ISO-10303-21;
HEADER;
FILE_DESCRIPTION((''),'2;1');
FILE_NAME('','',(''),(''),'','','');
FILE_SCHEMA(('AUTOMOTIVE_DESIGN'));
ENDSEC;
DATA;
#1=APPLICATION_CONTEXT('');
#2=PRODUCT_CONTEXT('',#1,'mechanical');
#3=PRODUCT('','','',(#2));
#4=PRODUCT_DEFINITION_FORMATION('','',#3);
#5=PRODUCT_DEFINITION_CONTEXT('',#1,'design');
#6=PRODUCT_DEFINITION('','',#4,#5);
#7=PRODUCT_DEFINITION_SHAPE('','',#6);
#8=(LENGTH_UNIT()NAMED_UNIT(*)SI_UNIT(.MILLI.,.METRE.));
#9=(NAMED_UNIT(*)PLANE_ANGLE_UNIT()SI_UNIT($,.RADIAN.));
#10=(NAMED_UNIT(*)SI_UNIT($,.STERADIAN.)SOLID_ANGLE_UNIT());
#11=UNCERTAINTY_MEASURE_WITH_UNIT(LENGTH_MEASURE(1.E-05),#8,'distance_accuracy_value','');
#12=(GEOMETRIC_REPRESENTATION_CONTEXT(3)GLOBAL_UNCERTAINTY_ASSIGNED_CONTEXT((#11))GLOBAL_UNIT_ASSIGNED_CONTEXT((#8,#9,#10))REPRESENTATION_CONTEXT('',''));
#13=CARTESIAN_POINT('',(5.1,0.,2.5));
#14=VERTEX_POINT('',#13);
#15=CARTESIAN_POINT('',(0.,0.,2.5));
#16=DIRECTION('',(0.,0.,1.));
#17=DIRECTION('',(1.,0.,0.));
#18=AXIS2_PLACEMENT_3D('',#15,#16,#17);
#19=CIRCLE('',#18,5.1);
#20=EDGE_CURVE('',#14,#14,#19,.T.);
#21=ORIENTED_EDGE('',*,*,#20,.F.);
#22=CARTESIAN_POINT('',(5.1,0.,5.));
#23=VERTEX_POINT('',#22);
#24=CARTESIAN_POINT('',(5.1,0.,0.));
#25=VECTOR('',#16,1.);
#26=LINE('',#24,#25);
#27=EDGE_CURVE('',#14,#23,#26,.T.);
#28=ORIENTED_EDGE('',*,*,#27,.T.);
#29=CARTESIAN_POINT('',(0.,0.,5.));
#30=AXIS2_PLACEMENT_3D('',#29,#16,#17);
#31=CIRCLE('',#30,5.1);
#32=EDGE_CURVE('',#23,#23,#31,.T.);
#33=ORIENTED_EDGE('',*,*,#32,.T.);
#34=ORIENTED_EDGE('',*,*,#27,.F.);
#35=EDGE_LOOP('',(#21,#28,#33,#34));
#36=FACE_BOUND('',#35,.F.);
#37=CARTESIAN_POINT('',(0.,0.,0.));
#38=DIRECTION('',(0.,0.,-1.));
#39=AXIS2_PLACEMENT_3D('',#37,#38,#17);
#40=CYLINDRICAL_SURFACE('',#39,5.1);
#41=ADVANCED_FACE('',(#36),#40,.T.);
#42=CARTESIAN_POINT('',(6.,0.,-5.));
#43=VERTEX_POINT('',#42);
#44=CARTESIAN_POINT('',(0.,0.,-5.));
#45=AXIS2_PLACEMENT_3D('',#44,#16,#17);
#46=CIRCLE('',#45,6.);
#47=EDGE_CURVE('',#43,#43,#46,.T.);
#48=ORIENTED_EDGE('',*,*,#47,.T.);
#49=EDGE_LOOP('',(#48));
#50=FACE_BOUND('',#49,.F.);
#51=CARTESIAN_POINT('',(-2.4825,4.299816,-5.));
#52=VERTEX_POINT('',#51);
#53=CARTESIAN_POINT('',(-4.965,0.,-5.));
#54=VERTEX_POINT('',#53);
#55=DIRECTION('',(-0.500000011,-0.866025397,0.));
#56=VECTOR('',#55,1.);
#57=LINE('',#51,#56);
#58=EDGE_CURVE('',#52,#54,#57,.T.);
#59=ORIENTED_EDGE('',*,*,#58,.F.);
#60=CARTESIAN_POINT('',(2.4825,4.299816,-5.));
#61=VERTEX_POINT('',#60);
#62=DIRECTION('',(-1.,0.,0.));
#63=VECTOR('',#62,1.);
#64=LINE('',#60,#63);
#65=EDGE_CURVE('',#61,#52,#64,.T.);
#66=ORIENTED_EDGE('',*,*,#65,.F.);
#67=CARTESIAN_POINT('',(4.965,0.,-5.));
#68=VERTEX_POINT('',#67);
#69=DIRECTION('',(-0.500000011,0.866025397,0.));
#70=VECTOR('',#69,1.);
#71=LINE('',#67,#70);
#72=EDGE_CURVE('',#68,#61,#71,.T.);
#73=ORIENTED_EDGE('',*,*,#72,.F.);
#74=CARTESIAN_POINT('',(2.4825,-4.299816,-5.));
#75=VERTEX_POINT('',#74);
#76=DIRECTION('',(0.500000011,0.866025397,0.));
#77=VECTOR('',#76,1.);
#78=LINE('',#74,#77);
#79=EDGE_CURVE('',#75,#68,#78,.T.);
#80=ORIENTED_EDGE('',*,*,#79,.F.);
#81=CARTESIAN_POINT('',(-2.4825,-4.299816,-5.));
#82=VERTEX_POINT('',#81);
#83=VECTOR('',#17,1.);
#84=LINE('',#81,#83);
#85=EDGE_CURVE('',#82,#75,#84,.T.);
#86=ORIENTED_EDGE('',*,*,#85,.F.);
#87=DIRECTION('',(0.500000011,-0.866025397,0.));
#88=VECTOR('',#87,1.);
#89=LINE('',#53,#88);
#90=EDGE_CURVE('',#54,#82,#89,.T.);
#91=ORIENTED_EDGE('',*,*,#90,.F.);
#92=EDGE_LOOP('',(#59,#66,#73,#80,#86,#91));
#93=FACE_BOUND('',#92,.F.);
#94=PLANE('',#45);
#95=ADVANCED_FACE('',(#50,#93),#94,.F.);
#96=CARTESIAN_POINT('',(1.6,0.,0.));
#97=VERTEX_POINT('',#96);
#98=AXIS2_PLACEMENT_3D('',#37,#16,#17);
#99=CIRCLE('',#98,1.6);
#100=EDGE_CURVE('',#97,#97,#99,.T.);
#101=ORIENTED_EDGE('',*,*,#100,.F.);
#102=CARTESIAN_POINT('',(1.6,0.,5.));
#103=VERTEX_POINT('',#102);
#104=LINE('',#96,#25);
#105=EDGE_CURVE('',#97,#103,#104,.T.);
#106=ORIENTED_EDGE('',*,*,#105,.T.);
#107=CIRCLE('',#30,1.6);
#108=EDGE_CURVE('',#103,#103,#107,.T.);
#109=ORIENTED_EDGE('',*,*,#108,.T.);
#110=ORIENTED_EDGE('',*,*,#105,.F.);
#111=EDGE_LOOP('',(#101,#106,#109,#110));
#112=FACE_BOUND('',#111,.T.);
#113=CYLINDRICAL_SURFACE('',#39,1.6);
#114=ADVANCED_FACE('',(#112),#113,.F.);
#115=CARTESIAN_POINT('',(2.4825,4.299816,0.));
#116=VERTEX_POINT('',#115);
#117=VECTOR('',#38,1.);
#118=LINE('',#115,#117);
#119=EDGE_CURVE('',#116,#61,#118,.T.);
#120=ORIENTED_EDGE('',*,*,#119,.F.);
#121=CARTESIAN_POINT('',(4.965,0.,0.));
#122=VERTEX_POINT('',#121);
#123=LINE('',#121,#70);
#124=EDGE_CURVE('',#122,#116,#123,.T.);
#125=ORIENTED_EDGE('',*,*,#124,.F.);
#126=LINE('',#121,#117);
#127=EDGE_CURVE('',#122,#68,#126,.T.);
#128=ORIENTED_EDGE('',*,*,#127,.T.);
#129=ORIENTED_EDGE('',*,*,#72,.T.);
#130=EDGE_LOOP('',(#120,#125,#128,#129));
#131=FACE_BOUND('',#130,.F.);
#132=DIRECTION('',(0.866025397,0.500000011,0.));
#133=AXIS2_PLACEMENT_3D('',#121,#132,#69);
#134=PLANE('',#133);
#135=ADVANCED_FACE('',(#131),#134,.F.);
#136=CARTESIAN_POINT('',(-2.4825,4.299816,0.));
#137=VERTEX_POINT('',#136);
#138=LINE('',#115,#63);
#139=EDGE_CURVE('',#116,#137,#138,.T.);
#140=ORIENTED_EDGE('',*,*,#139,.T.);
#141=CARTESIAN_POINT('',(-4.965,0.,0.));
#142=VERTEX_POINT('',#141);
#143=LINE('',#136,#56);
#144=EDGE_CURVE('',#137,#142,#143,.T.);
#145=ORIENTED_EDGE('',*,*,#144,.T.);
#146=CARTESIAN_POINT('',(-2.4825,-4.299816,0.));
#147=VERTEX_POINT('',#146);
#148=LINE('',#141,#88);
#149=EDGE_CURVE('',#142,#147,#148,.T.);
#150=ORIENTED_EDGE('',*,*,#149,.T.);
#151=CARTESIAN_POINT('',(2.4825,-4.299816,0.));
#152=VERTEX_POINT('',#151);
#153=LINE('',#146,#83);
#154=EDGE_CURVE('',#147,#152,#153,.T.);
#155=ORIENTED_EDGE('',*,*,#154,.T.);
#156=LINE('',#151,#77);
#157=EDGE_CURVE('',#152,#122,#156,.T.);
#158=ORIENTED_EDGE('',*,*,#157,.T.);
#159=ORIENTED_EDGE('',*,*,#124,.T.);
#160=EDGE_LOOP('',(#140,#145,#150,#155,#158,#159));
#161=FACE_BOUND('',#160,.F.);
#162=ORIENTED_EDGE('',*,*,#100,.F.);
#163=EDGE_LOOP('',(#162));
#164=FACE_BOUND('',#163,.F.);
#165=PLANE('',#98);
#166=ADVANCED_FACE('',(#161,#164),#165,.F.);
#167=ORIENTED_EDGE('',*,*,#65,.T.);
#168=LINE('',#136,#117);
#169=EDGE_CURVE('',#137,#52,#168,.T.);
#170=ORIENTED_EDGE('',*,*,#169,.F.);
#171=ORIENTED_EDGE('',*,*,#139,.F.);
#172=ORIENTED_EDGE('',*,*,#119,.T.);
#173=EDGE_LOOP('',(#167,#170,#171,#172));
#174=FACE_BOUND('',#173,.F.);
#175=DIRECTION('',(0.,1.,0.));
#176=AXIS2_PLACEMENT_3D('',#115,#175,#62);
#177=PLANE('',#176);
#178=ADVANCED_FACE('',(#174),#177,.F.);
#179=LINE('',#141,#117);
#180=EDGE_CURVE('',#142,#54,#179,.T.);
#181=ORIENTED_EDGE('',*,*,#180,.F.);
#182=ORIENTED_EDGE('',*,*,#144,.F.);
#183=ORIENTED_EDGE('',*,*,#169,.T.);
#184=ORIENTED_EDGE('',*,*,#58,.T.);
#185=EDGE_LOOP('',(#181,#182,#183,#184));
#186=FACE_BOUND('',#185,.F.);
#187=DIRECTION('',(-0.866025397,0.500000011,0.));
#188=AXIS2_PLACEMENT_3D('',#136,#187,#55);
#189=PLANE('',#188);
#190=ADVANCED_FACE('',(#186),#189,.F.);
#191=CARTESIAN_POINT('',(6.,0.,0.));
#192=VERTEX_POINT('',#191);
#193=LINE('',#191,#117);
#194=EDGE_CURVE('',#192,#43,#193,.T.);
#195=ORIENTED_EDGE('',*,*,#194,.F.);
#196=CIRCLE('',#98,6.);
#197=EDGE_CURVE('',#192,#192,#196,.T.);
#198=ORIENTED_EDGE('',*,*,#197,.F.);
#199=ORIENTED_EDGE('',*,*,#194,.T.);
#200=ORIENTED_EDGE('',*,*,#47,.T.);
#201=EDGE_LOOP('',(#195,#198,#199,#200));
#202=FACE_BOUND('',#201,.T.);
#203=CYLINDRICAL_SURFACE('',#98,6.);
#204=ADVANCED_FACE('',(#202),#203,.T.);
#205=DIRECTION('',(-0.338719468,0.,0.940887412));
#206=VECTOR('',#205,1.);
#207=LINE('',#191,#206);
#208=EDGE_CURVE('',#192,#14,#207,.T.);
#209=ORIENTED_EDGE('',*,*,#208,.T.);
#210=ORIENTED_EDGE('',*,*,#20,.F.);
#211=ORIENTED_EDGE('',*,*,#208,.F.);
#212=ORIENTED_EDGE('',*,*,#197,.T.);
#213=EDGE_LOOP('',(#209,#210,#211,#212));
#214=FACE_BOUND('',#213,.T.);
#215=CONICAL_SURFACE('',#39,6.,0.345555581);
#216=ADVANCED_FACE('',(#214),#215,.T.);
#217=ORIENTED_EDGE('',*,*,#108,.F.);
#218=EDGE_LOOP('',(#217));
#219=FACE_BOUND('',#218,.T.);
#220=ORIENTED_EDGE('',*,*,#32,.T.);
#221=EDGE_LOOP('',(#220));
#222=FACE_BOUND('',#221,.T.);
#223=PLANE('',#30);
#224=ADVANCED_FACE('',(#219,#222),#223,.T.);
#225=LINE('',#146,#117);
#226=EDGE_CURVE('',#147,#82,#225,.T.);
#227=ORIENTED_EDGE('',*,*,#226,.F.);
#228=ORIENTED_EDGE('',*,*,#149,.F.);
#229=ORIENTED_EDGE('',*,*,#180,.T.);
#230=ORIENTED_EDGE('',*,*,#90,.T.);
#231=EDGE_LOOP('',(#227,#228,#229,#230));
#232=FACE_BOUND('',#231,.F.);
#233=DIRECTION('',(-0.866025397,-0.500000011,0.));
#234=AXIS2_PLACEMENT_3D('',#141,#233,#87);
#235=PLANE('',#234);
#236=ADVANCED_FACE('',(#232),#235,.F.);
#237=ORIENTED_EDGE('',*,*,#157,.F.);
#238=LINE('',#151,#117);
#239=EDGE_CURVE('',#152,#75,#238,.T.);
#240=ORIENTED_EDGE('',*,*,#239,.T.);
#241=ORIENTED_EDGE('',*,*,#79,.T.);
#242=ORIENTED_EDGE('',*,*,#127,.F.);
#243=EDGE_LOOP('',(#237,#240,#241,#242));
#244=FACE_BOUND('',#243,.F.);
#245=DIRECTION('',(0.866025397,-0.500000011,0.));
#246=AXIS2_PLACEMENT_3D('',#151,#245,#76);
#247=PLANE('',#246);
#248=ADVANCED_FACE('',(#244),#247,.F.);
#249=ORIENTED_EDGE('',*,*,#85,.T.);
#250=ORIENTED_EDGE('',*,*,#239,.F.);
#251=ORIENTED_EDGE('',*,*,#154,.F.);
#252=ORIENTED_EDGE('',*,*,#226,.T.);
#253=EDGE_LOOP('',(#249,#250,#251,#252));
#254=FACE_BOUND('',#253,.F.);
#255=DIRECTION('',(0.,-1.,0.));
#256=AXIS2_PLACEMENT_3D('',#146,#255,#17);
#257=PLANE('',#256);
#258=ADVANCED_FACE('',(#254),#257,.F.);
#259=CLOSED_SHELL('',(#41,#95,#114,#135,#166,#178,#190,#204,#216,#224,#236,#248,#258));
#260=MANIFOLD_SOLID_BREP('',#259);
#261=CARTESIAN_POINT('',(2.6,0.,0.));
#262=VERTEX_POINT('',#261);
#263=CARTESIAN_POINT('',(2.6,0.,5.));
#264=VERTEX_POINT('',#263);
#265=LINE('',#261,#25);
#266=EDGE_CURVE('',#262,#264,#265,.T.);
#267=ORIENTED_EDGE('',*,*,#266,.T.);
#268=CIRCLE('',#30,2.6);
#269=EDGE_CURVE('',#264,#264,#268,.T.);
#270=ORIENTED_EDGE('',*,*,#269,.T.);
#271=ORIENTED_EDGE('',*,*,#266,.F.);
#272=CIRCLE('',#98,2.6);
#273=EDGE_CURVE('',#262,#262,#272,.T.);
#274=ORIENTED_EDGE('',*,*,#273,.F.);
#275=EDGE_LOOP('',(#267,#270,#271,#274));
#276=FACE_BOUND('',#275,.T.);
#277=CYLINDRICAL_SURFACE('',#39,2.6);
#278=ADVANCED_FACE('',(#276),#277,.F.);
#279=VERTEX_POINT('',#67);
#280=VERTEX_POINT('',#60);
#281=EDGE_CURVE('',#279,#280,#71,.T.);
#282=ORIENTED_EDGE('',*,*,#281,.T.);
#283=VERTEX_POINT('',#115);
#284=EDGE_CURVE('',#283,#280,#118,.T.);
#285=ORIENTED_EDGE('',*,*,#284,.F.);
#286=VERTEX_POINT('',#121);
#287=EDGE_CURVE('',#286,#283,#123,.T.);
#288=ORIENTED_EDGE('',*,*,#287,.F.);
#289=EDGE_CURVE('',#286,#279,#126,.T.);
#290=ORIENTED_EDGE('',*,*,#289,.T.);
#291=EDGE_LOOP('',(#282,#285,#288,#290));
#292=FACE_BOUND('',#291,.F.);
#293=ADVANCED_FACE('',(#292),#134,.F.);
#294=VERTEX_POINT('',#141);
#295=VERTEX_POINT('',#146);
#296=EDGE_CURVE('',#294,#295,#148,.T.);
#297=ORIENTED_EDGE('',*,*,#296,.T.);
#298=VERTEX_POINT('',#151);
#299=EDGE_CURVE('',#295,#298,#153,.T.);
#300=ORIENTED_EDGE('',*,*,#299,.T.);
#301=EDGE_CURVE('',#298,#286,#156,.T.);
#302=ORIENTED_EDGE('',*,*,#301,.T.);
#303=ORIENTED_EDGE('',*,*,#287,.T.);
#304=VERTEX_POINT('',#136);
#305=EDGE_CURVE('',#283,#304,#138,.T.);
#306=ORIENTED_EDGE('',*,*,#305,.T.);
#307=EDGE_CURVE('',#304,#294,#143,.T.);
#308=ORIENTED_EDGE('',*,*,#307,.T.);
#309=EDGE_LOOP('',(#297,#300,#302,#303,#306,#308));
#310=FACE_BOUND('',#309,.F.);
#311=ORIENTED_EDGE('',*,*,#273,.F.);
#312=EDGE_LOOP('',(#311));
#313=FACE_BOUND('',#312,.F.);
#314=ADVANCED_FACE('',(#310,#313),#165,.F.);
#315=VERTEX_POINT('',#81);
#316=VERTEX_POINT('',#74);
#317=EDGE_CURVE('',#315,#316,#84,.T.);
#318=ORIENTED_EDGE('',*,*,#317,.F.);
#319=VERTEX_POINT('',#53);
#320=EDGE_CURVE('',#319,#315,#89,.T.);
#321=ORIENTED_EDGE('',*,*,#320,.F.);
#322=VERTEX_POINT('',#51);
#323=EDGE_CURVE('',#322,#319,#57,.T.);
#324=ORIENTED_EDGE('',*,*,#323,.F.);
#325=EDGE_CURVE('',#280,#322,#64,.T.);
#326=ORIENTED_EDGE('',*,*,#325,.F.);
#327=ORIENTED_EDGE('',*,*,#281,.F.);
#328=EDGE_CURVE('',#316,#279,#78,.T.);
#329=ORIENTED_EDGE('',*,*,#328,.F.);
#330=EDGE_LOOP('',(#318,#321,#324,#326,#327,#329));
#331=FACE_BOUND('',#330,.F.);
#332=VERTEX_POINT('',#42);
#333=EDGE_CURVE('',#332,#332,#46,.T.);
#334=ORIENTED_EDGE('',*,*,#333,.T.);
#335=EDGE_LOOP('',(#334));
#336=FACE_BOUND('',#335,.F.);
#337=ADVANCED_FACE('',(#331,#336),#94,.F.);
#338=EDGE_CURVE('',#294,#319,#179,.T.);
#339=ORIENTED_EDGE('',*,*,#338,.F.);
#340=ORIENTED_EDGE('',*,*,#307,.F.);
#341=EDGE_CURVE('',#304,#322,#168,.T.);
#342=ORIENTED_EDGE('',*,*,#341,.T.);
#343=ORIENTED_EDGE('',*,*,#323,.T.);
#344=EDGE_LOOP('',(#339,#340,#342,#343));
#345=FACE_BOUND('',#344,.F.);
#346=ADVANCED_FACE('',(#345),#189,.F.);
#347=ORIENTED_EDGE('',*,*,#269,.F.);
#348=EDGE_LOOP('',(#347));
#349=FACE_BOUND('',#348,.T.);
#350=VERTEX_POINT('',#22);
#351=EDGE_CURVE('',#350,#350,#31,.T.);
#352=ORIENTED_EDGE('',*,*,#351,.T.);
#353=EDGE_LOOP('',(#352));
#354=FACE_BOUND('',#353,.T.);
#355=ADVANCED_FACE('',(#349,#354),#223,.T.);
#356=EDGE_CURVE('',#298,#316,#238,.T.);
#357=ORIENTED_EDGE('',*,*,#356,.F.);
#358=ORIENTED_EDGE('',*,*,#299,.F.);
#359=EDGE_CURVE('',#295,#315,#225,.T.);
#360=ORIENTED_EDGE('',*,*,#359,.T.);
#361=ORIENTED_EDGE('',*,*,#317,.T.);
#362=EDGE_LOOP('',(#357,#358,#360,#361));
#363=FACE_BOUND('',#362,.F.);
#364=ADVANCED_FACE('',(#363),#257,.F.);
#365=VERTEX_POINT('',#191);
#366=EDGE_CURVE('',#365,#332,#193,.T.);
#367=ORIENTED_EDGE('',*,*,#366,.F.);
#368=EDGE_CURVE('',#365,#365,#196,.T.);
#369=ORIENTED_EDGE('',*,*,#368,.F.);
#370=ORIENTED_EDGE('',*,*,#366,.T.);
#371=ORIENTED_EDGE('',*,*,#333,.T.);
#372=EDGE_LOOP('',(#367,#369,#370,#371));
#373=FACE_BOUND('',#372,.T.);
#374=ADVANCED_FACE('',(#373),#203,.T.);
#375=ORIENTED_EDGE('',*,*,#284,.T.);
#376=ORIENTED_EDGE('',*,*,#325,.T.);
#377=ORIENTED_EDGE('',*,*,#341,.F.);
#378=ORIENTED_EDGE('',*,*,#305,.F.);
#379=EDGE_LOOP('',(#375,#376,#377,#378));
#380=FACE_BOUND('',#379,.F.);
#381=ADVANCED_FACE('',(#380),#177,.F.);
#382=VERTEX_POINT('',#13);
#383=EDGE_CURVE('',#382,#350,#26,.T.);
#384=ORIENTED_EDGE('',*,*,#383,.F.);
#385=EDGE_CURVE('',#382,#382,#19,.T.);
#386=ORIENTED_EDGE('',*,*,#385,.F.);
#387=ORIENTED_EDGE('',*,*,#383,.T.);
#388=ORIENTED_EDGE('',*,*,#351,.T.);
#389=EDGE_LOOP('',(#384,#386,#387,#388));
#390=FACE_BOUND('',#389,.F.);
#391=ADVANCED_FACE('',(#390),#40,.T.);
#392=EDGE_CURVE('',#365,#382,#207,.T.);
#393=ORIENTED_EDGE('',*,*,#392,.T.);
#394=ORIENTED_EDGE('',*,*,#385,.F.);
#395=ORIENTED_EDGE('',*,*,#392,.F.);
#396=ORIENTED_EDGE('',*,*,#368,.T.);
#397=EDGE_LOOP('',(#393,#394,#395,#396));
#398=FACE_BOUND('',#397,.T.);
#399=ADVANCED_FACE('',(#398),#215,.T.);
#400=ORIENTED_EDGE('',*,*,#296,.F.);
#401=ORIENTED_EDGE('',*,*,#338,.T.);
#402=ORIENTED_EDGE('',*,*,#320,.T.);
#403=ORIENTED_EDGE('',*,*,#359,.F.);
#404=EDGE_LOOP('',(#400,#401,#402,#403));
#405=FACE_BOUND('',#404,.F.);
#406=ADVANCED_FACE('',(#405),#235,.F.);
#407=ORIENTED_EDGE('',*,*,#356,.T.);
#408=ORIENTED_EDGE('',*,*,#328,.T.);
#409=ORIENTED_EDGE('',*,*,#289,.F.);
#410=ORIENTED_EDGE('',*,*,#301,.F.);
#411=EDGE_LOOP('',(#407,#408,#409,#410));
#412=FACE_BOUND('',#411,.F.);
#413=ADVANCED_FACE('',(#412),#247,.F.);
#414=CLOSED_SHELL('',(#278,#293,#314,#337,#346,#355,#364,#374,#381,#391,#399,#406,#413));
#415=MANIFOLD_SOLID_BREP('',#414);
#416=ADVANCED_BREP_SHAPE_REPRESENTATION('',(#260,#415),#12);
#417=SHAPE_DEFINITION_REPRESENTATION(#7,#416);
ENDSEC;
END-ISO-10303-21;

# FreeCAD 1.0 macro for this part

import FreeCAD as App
import Part
import Sketcher
from FreeCAD import Vector
Q = App.Units.Quantity


def add_polygon(sketch, points):
    """Adds a closed chain of lines whose ends are joined by coincident constraints."""
    first, n = sketch.GeometryCount, len(points)
    for a, b in zip(points, points[1:] + points[:1]):
        sketch.addGeometry(Part.LineSegment(App.Vector(*a, 0), App.Vector(*b, 0)), False)
    for i in range(n):
        sketch.addConstraint(Sketcher.Constraint("Coincident", first + i, 2, first + (i + 1) % n, 1))

doc = App.newDocument("Part")
body = doc.addObject("PartDesign::Body", "Body")

# Sketch on XY plane
sketch1 = body.newObject("Sketcher::SketchObject", "Sketch")
sketch1.AttachmentSupport = (doc.getObject("XY_Plane"), [""])
sketch1.MapMode = "FlatFace"
sketch1.addGeometry(Part.Circle(Vector(0, 0, 0), Vector(0, 0, 1), 5.1), False)
sketch1.addGeometry(Part.Circle(Vector(0, 0, 0), Vector(0, 0, 1), 1.6), False)
sketch1.addConstraint(Sketcher.Constraint("Coincident", 0, 3, -1, 1))
sketch1.addConstraint(Sketcher.Constraint("Coincident", 1, 3, -1, 1))
sketch1.addConstraint(Sketcher.Constraint("Diameter", 0, 10.2))
sketch1.addConstraint(Sketcher.Constraint("Diameter", 1, 3.2))
pad1 = body.newObject("PartDesign::Pad", "Pad")
pad1.Profile = sketch1
pad1.Length = 5

# Sketch on XY plane
sketch2 = body.newObject("Sketcher::SketchObject", "Sketch001")
sketch2.AttachmentSupport = (doc.getObject("XY_Plane"), [""])
sketch2.MapMode = "FlatFace"
sketch2.addGeometry(Part.Circle(Vector(0, 0, 0), Vector(0, 0, 1), 6), False)  # 0
add_polygon(sketch2, [(-2.4825, 4.299816), (2.4825, 4.299816), (4.965, 0), (2.4825, -4.299816), (-2.4825, -4.299816), (-4.965, 0)])  # lines 1-6
sketch2.addConstraint(Sketcher.Constraint("Horizontal", 1))
sketch2.addConstraint(Sketcher.Constraint("Horizontal", 4))
sketch2.addConstraint(Sketcher.Constraint("Coincident", 0, 3, -1, 1))
sketch2.addConstraint(Sketcher.Constraint("Symmetric", 1, 2, 4, 2, -1, 1))
sketch2.addConstraint(Sketcher.Constraint("Symmetric", 2, 2, 5, 2, -1, 1))
sketch2.addConstraint(Sketcher.Constraint("PointOnObject", 2, 2, -1))
sketch2.addConstraint(Sketcher.Constraint("Parallel", 3, 6))
sketch2.addConstraint(Sketcher.Constraint("Vertical", 1, 2, 3, 2))
sketch2.addConstraint(Sketcher.Constraint("Diameter", 0, 12.0))
sketch2.addConstraint(Sketcher.Constraint("Angle", 2, Q("-59.999999 deg")))
sketch2.addConstraint(Sketcher.Constraint("DistanceX", 1, 1, 1, 2, 4.965))
sketch2.addConstraint(Sketcher.Constraint("DistanceX", 5, 2, 2, 2, 9.93))
pad2 = body.newObject("PartDesign::Pad", "Pad001")
pad2.Profile = sketch2
pad2.Length = 5
pad2.Reversed = True

# Sketch on XZ plane
sketch3 = body.newObject("Sketcher::SketchObject", "Sketch002")
sketch3.AttachmentSupport = (doc.getObject("XZ_Plane"), [""])
sketch3.MapMode = "FlatFace"
add_polygon(sketch3, [(6, 0), (5.1, 2.5), (5.1, 0)])  # lines 0-2
sketch3.addConstraint(Sketcher.Constraint("Vertical", 1))
sketch3.addConstraint(Sketcher.Constraint("Horizontal", 2))
sketch3.addConstraint(Sketcher.Constraint("PointOnObject", 1, 2, -1))
sketch3.addConstraint(Sketcher.Constraint("DistanceX", 2, 1, 2, 2, 0.9))
sketch3.addConstraint(Sketcher.Constraint("DistanceY", 1, 2, 1, 1, 2.5))
sketch3.addConstraint(Sketcher.Constraint("DistanceX", -1, 1, 2, 2, 6.0))
revolution = body.newObject("PartDesign::Revolution", "Revolution")
revolution.Profile = sketch3
revolution.ReferenceAxis = (sketch3, ["V_Axis"])
revolution.Angle = 360
body2 = doc.addObject("PartDesign::Body", "Body001")

# Sketch on XY plane
sketch4 = body2.newObject("Sketcher::SketchObject", "Sketch003")
sketch4.AttachmentSupport = (doc.getObject("XY_Plane001"), [""])
sketch4.MapMode = "FlatFace"
sketch4.addGeometry(Part.Circle(Vector(0, 0, 0), Vector(0, 0, 1), 5.1), False)
sketch4.addGeometry(Part.Circle(Vector(0, 0, 0), Vector(0, 0, 1), 2.6), False)
sketch4.addConstraint(Sketcher.Constraint("Coincident", 0, 3, -1, 1))
sketch4.addConstraint(Sketcher.Constraint("Coincident", 1, 3, -1, 1))
sketch4.addConstraint(Sketcher.Constraint("Diameter", 0, 10.2))
sketch4.addConstraint(Sketcher.Constraint("Diameter", 1, 5.2))
pad3 = body2.newObject("PartDesign::Pad", "Pad002")
pad3.Profile = sketch4
pad3.Length = 5

# Sketch on XY plane
sketch5 = body2.newObject("Sketcher::SketchObject", "Sketch004")
sketch5.AttachmentSupport = (doc.getObject("XY_Plane001"), [""])
sketch5.MapMode = "FlatFace"
sketch5.addGeometry(Part.Circle(Vector(0, 0, 0), Vector(0, 0, 1), 6), False)  # 0
add_polygon(sketch5, [(-2.4825, 4.299816), (2.4825, 4.299816), (4.965, 0), (2.4825, -4.299816), (-2.4825, -4.299816), (-4.965, 0)])  # lines 1-6
sketch5.addConstraint(Sketcher.Constraint("Horizontal", 1))
sketch5.addConstraint(Sketcher.Constraint("Horizontal", 4))
sketch5.addConstraint(Sketcher.Constraint("Coincident", 0, 3, -1, 1))
sketch5.addConstraint(Sketcher.Constraint("Symmetric", 1, 2, 4, 2, -1, 1))
sketch5.addConstraint(Sketcher.Constraint("Symmetric", 2, 2, 5, 2, -1, 1))
sketch5.addConstraint(Sketcher.Constraint("PointOnObject", 2, 2, -1))
sketch5.addConstraint(Sketcher.Constraint("Parallel", 3, 6))
sketch5.addConstraint(Sketcher.Constraint("Vertical", 1, 2, 3, 2))
sketch5.addConstraint(Sketcher.Constraint("Diameter", 0, 12.0))
sketch5.addConstraint(Sketcher.Constraint("Angle", 2, Q("-59.999999 deg")))
sketch5.addConstraint(Sketcher.Constraint("DistanceX", 1, 1, 1, 2, 4.965))
sketch5.addConstraint(Sketcher.Constraint("DistanceX", 5, 2, 2, 2, 9.93))
pad4 = body2.newObject("PartDesign::Pad", "Pad003")
pad4.Profile = sketch5
pad4.Length = 5
pad4.Reversed = True

# Sketch on XZ plane
sketch6 = body2.newObject("Sketcher::SketchObject", "Sketch005")
sketch6.AttachmentSupport = (doc.getObject("XZ_Plane001"), [""])
sketch6.MapMode = "FlatFace"
add_polygon(sketch6, [(6, 0), (5.1, 2.5), (5.1, 0)])  # lines 0-2
sketch6.addConstraint(Sketcher.Constraint("Vertical", 1))
sketch6.addConstraint(Sketcher.Constraint("Horizontal", 2))
sketch6.addConstraint(Sketcher.Constraint("PointOnObject", 1, 2, -1))
sketch6.addConstraint(Sketcher.Constraint("DistanceX", 2, 1, 2, 2, 0.9))
sketch6.addConstraint(Sketcher.Constraint("DistanceY", 1, 2, 1, 1, 2.5))
sketch6.addConstraint(Sketcher.Constraint("DistanceX", -1, 1, 2, 2, 6.0))
revolution2 = body2.newObject("PartDesign::Revolution", "Revolution001")
revolution2.Profile = sketch6
revolution2.ReferenceAxis = (sketch6, ["V_Axis"])
revolution2.Angle = 360

doc.recompute()
